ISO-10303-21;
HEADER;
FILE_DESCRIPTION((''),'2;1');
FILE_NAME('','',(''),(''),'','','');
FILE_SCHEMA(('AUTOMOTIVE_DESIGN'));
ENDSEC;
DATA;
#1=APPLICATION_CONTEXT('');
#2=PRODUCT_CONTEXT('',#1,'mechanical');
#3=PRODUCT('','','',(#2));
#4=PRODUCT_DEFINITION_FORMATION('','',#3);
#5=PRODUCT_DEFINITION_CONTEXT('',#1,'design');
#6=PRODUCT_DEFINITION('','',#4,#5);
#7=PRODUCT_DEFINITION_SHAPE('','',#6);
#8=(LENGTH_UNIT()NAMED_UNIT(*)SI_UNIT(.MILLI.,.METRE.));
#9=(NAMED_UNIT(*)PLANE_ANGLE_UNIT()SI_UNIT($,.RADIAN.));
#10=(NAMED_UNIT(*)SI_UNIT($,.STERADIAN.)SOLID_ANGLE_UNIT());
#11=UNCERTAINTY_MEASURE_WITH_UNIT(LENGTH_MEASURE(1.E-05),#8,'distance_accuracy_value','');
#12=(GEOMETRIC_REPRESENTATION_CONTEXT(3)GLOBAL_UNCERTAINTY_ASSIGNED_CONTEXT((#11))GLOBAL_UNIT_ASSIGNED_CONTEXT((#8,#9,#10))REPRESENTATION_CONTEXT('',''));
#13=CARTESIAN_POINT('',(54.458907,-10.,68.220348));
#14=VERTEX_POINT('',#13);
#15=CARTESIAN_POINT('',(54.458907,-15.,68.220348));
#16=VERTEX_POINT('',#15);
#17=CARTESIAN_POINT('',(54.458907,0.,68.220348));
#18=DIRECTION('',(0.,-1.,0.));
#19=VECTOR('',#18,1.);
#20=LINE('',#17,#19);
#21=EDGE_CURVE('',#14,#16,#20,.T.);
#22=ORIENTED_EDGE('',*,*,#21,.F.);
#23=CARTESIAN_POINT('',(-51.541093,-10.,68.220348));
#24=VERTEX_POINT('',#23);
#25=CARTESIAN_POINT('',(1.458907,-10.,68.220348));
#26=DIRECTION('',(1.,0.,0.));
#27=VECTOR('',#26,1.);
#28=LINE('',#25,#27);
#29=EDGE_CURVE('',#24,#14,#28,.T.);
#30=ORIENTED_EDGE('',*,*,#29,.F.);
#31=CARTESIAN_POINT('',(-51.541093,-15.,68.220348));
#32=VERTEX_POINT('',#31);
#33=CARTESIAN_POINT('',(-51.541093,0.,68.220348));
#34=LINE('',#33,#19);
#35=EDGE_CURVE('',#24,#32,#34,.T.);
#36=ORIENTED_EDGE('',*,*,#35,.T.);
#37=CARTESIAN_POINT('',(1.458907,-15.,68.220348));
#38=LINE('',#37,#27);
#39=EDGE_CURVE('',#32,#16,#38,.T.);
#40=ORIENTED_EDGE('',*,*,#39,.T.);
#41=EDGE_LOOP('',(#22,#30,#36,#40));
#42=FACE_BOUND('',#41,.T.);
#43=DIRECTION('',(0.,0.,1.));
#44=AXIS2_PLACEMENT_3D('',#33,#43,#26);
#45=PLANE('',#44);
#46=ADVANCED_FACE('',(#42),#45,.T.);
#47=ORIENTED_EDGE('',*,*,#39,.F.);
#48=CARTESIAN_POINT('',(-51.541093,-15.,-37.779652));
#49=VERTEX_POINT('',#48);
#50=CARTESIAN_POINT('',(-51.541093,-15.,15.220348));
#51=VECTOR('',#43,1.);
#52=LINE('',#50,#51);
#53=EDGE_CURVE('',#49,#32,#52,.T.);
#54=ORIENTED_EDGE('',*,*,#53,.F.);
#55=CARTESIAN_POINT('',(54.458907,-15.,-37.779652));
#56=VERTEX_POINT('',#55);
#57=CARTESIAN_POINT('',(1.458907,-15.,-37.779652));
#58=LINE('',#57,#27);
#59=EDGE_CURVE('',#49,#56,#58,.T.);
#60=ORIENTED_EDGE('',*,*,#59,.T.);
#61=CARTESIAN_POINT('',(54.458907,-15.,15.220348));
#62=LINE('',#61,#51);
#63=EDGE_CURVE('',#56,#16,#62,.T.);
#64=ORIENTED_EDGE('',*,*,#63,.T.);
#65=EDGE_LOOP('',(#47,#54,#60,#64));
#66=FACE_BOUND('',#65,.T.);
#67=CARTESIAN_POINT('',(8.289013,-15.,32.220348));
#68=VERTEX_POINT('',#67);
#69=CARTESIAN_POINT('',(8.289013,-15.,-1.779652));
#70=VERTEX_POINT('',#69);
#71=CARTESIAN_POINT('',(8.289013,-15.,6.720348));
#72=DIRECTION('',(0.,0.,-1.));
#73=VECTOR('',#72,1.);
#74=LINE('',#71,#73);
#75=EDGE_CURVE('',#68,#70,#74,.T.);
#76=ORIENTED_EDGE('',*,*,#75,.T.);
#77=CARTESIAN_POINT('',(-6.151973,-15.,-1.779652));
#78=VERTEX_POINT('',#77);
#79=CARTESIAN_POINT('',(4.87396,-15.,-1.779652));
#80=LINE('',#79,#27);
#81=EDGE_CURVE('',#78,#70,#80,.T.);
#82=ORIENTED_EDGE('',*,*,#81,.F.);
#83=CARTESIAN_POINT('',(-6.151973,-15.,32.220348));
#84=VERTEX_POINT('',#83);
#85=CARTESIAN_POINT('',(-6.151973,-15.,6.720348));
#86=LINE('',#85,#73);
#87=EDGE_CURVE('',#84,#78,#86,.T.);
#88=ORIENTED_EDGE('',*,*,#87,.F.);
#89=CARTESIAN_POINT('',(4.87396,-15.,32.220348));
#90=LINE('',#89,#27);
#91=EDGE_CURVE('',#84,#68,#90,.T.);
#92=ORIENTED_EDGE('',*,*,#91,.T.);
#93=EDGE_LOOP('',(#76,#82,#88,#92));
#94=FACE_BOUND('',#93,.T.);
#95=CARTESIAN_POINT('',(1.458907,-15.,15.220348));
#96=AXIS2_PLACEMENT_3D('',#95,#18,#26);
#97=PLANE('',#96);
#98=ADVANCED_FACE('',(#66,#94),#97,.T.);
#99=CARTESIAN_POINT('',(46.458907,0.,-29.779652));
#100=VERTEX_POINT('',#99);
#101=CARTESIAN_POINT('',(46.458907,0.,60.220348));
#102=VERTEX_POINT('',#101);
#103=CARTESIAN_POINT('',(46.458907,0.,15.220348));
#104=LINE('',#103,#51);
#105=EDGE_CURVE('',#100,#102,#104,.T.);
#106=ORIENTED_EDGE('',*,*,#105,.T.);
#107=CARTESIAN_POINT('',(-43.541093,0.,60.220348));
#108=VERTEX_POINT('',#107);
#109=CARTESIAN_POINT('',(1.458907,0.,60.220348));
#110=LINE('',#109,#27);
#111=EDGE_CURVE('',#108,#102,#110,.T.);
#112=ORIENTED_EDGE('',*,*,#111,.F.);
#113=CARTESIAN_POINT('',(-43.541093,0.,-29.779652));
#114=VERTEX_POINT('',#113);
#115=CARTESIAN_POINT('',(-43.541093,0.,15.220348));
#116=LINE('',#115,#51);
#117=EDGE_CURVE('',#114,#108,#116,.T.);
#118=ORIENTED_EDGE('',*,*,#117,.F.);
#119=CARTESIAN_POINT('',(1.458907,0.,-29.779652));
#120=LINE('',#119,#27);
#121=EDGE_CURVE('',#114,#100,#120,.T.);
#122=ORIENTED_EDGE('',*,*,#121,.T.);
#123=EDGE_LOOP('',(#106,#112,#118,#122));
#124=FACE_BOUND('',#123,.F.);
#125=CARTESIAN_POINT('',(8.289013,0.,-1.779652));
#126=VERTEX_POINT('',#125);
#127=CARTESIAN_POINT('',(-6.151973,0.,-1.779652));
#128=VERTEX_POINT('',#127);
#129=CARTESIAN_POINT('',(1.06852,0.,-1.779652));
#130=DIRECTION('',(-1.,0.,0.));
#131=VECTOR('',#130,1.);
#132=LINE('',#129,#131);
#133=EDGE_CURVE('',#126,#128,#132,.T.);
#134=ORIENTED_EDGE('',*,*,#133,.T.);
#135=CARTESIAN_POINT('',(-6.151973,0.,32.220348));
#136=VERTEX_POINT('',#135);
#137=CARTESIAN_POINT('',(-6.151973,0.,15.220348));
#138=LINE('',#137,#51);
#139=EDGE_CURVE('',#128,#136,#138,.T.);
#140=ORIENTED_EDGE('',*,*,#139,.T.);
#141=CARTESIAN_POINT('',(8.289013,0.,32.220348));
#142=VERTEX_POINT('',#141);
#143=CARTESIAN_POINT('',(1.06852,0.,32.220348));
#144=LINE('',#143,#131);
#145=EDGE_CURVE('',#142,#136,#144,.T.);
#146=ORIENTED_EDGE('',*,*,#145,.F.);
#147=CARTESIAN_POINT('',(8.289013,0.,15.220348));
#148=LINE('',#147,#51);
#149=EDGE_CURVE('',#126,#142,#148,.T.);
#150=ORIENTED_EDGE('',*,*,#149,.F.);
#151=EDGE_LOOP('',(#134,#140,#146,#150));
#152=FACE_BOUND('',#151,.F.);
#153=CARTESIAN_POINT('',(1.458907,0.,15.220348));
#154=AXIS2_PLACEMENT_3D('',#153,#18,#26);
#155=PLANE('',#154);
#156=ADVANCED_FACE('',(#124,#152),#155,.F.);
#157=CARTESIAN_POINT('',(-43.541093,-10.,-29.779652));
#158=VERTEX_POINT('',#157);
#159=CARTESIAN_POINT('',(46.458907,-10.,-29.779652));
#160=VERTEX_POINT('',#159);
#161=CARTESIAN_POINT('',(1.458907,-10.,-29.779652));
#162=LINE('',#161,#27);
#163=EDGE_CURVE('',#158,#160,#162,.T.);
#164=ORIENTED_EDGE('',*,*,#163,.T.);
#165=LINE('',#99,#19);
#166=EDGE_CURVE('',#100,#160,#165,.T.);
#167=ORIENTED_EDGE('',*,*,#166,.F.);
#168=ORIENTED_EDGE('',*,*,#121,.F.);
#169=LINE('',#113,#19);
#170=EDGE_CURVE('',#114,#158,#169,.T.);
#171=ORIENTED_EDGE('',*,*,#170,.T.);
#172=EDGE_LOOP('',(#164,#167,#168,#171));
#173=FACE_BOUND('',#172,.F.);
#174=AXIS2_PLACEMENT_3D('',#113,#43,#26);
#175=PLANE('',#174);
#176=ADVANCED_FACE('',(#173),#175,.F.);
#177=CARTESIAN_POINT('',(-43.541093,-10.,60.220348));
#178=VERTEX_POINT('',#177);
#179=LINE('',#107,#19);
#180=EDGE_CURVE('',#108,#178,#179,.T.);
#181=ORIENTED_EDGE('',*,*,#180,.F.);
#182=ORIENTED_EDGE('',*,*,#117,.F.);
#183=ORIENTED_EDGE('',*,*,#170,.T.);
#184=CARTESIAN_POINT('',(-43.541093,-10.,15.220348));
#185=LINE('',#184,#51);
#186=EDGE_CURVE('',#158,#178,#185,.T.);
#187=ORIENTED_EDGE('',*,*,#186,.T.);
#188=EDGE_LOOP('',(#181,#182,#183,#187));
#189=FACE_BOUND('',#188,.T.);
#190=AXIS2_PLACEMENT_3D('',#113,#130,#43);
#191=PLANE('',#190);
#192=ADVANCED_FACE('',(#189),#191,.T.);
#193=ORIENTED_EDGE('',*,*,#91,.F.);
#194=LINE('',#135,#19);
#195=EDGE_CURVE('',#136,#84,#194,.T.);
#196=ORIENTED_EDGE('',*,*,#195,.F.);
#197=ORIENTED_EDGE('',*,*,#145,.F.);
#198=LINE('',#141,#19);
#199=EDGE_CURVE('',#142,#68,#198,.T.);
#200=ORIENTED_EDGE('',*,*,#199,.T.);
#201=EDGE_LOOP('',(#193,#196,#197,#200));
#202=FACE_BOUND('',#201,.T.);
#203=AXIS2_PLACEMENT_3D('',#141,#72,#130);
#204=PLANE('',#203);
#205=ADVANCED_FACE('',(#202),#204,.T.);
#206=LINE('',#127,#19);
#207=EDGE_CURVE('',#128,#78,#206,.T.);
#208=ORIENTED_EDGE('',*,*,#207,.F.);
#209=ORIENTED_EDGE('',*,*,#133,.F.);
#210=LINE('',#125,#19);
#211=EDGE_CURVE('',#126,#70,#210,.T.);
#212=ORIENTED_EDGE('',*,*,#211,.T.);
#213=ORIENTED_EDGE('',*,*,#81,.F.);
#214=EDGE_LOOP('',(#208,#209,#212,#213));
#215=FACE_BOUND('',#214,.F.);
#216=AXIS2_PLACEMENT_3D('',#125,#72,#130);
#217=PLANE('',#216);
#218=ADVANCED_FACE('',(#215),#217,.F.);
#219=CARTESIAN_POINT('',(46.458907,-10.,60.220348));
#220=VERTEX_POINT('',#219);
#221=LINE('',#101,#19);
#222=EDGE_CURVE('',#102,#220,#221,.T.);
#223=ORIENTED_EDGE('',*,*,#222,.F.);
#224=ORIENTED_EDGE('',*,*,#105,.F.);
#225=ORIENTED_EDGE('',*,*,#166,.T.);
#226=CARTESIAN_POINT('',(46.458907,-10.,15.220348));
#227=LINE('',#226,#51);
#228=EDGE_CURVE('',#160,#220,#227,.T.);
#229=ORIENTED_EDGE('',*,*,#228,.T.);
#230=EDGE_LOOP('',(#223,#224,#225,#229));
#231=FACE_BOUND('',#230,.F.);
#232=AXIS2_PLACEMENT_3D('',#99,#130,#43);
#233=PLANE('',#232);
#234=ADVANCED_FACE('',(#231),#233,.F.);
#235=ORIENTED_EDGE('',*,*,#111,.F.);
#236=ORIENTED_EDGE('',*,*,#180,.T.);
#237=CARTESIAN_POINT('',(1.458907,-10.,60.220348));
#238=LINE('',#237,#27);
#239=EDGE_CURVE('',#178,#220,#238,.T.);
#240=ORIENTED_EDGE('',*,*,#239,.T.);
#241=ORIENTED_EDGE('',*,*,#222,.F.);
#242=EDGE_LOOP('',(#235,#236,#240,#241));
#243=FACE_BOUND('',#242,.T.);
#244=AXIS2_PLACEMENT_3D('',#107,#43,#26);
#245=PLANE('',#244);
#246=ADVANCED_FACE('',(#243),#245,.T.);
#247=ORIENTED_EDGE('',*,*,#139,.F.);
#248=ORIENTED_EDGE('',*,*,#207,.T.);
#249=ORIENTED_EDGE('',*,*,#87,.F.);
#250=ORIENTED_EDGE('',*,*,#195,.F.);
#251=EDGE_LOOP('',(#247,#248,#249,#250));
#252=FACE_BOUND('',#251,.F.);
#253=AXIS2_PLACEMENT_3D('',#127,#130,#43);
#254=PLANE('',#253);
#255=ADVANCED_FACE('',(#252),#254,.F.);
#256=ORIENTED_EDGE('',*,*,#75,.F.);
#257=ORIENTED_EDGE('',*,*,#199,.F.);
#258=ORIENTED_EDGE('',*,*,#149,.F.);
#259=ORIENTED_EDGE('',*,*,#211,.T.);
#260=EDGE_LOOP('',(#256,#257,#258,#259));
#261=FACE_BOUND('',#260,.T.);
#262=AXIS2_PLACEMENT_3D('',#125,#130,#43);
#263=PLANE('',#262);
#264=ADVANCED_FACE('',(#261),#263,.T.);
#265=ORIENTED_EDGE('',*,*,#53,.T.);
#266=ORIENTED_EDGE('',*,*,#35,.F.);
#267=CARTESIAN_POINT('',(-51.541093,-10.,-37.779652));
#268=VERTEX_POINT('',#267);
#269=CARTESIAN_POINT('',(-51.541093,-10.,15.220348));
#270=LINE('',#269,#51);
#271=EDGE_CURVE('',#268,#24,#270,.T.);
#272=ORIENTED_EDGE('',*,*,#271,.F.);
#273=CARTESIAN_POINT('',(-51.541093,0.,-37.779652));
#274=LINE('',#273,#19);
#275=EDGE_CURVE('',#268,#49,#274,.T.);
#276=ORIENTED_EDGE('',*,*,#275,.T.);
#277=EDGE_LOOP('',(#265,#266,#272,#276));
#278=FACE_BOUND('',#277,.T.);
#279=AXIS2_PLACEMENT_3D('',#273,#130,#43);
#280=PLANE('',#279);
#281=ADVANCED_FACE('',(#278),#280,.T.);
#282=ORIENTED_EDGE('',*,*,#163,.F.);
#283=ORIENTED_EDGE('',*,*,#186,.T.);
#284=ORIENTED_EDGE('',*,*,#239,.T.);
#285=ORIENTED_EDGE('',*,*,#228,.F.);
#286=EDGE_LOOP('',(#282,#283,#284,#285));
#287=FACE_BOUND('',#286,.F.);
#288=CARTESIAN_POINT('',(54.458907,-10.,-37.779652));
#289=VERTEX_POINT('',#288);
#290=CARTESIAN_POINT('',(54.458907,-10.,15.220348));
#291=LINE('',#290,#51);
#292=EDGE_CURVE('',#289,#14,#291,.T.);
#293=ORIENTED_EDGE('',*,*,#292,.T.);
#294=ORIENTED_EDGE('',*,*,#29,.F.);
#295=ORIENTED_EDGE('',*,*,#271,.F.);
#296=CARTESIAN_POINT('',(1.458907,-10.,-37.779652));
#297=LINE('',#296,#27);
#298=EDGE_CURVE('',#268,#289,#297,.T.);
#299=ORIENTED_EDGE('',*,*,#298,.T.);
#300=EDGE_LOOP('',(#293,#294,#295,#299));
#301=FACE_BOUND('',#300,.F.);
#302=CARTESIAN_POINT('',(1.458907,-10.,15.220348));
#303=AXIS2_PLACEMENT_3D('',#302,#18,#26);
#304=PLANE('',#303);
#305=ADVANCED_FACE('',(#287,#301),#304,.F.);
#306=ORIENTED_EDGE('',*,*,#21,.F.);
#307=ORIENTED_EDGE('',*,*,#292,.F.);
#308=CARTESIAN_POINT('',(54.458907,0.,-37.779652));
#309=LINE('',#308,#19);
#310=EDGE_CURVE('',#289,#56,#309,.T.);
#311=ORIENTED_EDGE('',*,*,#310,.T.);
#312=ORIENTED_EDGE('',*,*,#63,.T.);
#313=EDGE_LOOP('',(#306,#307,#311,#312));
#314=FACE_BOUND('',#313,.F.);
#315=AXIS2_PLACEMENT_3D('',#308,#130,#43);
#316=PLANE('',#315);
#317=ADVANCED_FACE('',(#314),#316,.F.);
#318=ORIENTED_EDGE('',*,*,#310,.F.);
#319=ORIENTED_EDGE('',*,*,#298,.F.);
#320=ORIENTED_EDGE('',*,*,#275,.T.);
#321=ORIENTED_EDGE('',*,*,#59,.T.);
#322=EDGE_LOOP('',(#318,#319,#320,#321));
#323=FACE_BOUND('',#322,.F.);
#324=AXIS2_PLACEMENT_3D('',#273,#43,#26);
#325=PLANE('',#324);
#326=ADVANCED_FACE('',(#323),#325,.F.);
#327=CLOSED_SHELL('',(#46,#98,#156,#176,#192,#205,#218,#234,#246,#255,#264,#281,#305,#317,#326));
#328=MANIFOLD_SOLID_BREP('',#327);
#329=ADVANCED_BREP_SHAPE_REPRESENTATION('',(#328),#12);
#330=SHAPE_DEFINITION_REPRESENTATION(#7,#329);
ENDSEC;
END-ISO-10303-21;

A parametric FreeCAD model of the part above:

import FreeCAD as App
import Part
import Sketcher


def add_polygon(sketch, points):
    """Adds a closed chain of lines whose ends are joined by coincident constraints."""
    first, n = sketch.GeometryCount, len(points)
    for a, b in zip(points, points[1:] + points[:1]):
        sketch.addGeometry(Part.LineSegment(App.Vector(*a, 0), App.Vector(*b, 0)), False)
    for i in range(n):
        sketch.addConstraint(Sketcher.Constraint("Coincident", first + i, 2, first + (i + 1) % n, 1))

doc = App.newDocument("Part")
body = doc.addObject("PartDesign::Body", "Body")

sketch1 = body.newObject("Sketcher::SketchObject", "Sketch")
sketch1.AttachmentSupport = (doc.getObject("XZ_Plane"), [""])
sketch1.MapMode = "FlatFace"
add_polygon(sketch1, [(-52, 68), (-52, -38), (54, -38), (54, 68)])
sketch1.addConstraint(Sketcher.Constraint("Vertical", 0))
sketch1.addConstraint(Sketcher.Constraint("Horizontal", 1))
sketch1.addConstraint(Sketcher.Constraint("Vertical", 2))
sketch1.addConstraint(Sketcher.Constraint("Horizontal", 3))
sketch1.addConstraint(Sketcher.Constraint("Equal", 3, 0))
sketch1.addConstraint(Sketcher.Constraint("DistanceX", 1, 1, 1, 2, 106.0))
sketch1.addConstraint(Sketcher.Constraint("DistanceY", -1, 1, 2, 2, 68.220348))
sketch1.addConstraint(Sketcher.Constraint("DistanceX", 0, 2, -1, 1, 51.541093))
pad1 = body.newObject("PartDesign::Pad", "Pad")
pad1.Profile = sketch1
pad1.Length = 15

sketch2 = body.newObject("Sketcher::SketchObject", "Sketch001")
sketch2.AttachmentSupport = (doc.getObject("XZ_Plane"), [""])
sketch2.MapMode = "FlatFace"
add_polygon(sketch2, [(-52, 68), (-52, -38), (54, -38), (54, 68)])
add_polygon(sketch2, [(46, -30), (-44, -30), (-44, 60), (46, 60)])
sketch2.addConstraint(Sketcher.Constraint("Vertical", 0))
sketch2.addConstraint(Sketcher.Constraint("Horizontal", 1))
sketch2.addConstraint(Sketcher.Constraint("Vertical", 2))
sketch2.addConstraint(Sketcher.Constraint("Horizontal", 3))
sketch2.addConstraint(Sketcher.Constraint("Horizontal", 4))
sketch2.addConstraint(Sketcher.Constraint("Vertical", 5))
sketch2.addConstraint(Sketcher.Constraint("Horizontal", 6))
sketch2.addConstraint(Sketcher.Constraint("Vertical", 7))
sketch2.addConstraint(Sketcher.Constraint("Equal", 3, 0))
sketch2.addConstraint(Sketcher.Constraint("Equal", 6, 5))
sketch2.addConstraint(Sketcher.Constraint("DistanceX", 1, 1, 1, 2, 106.0))
sketch2.addConstraint(Sketcher.Constraint("DistanceX", 4, 2, 4, 1, 90.0))
sketch2.addConstraint(Sketcher.Constraint("DistanceX", 0, 2, 4, 2, 8.0))
sketch2.addConstraint(Sketcher.Constraint("DistanceY", 0, 2, 4, 2, 8.0))
sketch2.addConstraint(Sketcher.Constraint("DistanceY", -1, 1, 2, 2, 68.220348))
sketch2.addConstraint(Sketcher.Constraint("DistanceX", 0, 2, -1, 1, 51.541093))
pocket1 = body.newObject("PartDesign::Pocket", "Pocket")
pocket1.Profile = sketch2
pocket1.Length = 10
pocket1.Reversed = True

sketch3 = body.newObject("Sketcher::SketchObject", "Sketch002")
sketch3.AttachmentSupport = (doc.getObject("XZ_Plane"), [""])
sketch3.MapMode = "FlatFace"
add_polygon(sketch3, [(8, 32), (8, -2), (-6, -2), (-6, 32)])
sketch3.addConstraint(Sketcher.Constraint("Vertical", 0))
sketch3.addConstraint(Sketcher.Constraint("Horizontal", 1))
sketch3.addConstraint(Sketcher.Constraint("Vertical", 2))
sketch3.addConstraint(Sketcher.Constraint("Horizontal", 3))
sketch3.addConstraint(Sketcher.Constraint("DistanceY", 0, 2, 0, 1, 34.0))
sketch3.addConstraint(Sketcher.Constraint("DistanceX", 1, 2, 1, 1, 14.440985))
sketch3.addConstraint(Sketcher.Constraint("DistanceX", -1, 1, 0, 2, 8.289013))
sketch3.addConstraint(Sketcher.Constraint("DistanceY", 0, 2, -1, 1, 1.779652))
pocket2 = body.newObject("PartDesign::Pocket", "Pocket001")
pocket2.Profile = sketch3
pocket2.Length = 25
pocket2.Reversed = True

doc.recompute()
